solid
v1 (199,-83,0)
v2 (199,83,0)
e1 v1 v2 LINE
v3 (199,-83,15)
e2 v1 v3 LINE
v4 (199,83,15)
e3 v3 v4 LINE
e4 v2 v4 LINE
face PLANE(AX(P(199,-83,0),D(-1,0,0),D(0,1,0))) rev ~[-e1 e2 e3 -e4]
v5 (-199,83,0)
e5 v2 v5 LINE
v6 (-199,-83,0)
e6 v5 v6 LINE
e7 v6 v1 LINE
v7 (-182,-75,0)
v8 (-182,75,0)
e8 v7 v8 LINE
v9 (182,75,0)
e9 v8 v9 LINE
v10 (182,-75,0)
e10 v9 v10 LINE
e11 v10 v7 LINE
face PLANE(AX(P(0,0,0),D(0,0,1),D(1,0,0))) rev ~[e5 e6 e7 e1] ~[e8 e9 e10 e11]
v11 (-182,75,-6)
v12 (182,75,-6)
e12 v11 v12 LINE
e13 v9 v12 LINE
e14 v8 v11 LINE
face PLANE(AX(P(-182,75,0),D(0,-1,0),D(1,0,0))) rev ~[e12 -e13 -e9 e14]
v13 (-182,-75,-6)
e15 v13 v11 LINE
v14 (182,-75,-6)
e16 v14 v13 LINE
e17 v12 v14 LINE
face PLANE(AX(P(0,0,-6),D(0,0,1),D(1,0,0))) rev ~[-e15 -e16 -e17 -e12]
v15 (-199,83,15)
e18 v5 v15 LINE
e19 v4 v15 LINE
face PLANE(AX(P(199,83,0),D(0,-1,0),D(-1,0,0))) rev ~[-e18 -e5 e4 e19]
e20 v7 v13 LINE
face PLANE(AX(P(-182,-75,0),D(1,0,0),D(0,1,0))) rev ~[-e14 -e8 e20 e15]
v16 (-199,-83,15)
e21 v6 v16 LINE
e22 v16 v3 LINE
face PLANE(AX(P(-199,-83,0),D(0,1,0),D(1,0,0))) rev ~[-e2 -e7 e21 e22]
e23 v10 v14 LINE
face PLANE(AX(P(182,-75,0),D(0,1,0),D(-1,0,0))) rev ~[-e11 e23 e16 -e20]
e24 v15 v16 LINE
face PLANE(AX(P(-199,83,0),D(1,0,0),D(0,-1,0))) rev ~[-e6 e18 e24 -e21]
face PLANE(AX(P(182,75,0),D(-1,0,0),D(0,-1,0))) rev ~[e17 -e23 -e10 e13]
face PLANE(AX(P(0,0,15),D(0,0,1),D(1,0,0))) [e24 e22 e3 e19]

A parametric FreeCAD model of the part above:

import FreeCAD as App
import Part
import Sketcher
Q = App.Units.Quantity

doc = App.newDocument("Part")
body = doc.addObject("PartDesign::Body", "Body")

# Sketch on XY plane
sketch1 = body.newObject("Sketcher::SketchObject", "Sketch")
sketch1.AttachmentSupport = (doc.getObject("XY_Plane"), [""])
sketch1.MapMode = "FlatFace"
sketch1.addGeometry(Part.LineSegment(App.Vector(-199, 83, 0), App.Vector(-199, -83, 0)), False)
sketch1.addGeometry(Part.LineSegment(App.Vector(-199, -83, 0), App.Vector(199, -83, 0)), False)
sketch1.addGeometry(Part.LineSegment(App.Vector(199, -83, 0), App.Vector(199, 83, 0)), False)
sketch1.addGeometry(Part.LineSegment(App.Vector(199, 83, 0), App.Vector(-199, 83, 0)), False)
sketch1.addConstraint(Sketcher.Constraint("Coincident", 0, 2, 1, 1))
sketch1.addConstraint(Sketcher.Constraint("Coincident", 1, 2, 2, 1))
sketch1.addConstraint(Sketcher.Constraint("Coincident", 2, 2, 3, 1))
sketch1.addConstraint(Sketcher.Constraint("Coincident", 3, 2, 0, 1))
sketch1.addConstraint(Sketcher.Constraint("Vertical", 0))
sketch1.addConstraint(Sketcher.Constraint("Horizontal", 1))
sketch1.addConstraint(Sketcher.Constraint("Vertical", 2))
sketch1.addConstraint(Sketcher.Constraint("Horizontal", 3))
sketch1.addConstraint(Sketcher.Constraint("Symmetric", 0, 2, 2, 2, -1, 1))
sketch1.addConstraint(Sketcher.Constraint("DistanceX", 1, 1, 1, 2, Q("398 mm")))
sketch1.addConstraint(Sketcher.Constraint("DistanceY", 0, 2, 0, 1, Q("166 mm")))
pad1 = body.newObject("PartDesign::Pad", "Pad")
pad1.Profile = sketch1
pad1.Length = 15

# Sketch on XY plane
sketch2 = body.newObject("Sketcher::SketchObject", "Sketch001")
sketch2.AttachmentSupport = (doc.getObject("XY_Plane"), [""])
sketch2.MapMode = "FlatFace"
sketch2.addGeometry(Part.LineSegment(App.Vector(-182, -75, 0), App.Vector(182, -75, 0)), False)
sketch2.addGeometry(Part.LineSegment(App.Vector(182, -75, 0), App.Vector(182, 75, 0)), False)
sketch2.addGeometry(Part.LineSegment(App.Vector(182, 75, 0), App.Vector(-182, 75, 0)), False)
sketch2.addGeometry(Part.LineSegment(App.Vector(-182, 75, 0), App.Vector(-182, -75, 0)), False)
sketch2.addConstraint(Sketcher.Constraint("Coincident", 0, 2, 1, 1))
sketch2.addConstraint(Sketcher.Constraint("Coincident", 1, 2, 2, 1))
sketch2.addConstraint(Sketcher.Constraint("Coincident", 2, 2, 3, 1))
sketch2.addConstraint(Sketcher.Constraint("Coincident", 3, 2, 0, 1))
sketch2.addConstraint(Sketcher.Constraint("Horizontal", 0))
sketch2.addConstraint(Sketcher.Constraint("Vertical", 1))
sketch2.addConstraint(Sketcher.Constraint("Horizontal", 2))
sketch2.addConstraint(Sketcher.Constraint("Vertical", 3))
sketch2.addConstraint(Sketcher.Constraint("Symmetric", 0, 2, 2, 2, -1, 1))
sketch2.addConstraint(Sketcher.Constraint("DistanceX", 0, 1, 0, 2, Q("364 mm")))
sketch2.addConstraint(Sketcher.Constraint("DistanceY", 1, 1, 1, 2, Q("150 mm")))
pad2 = body.newObject("PartDesign::Pad", "Pad001")
pad2.Profile = sketch2
pad2.Length = 6
pad2.Reversed = True

doc.recompute()
